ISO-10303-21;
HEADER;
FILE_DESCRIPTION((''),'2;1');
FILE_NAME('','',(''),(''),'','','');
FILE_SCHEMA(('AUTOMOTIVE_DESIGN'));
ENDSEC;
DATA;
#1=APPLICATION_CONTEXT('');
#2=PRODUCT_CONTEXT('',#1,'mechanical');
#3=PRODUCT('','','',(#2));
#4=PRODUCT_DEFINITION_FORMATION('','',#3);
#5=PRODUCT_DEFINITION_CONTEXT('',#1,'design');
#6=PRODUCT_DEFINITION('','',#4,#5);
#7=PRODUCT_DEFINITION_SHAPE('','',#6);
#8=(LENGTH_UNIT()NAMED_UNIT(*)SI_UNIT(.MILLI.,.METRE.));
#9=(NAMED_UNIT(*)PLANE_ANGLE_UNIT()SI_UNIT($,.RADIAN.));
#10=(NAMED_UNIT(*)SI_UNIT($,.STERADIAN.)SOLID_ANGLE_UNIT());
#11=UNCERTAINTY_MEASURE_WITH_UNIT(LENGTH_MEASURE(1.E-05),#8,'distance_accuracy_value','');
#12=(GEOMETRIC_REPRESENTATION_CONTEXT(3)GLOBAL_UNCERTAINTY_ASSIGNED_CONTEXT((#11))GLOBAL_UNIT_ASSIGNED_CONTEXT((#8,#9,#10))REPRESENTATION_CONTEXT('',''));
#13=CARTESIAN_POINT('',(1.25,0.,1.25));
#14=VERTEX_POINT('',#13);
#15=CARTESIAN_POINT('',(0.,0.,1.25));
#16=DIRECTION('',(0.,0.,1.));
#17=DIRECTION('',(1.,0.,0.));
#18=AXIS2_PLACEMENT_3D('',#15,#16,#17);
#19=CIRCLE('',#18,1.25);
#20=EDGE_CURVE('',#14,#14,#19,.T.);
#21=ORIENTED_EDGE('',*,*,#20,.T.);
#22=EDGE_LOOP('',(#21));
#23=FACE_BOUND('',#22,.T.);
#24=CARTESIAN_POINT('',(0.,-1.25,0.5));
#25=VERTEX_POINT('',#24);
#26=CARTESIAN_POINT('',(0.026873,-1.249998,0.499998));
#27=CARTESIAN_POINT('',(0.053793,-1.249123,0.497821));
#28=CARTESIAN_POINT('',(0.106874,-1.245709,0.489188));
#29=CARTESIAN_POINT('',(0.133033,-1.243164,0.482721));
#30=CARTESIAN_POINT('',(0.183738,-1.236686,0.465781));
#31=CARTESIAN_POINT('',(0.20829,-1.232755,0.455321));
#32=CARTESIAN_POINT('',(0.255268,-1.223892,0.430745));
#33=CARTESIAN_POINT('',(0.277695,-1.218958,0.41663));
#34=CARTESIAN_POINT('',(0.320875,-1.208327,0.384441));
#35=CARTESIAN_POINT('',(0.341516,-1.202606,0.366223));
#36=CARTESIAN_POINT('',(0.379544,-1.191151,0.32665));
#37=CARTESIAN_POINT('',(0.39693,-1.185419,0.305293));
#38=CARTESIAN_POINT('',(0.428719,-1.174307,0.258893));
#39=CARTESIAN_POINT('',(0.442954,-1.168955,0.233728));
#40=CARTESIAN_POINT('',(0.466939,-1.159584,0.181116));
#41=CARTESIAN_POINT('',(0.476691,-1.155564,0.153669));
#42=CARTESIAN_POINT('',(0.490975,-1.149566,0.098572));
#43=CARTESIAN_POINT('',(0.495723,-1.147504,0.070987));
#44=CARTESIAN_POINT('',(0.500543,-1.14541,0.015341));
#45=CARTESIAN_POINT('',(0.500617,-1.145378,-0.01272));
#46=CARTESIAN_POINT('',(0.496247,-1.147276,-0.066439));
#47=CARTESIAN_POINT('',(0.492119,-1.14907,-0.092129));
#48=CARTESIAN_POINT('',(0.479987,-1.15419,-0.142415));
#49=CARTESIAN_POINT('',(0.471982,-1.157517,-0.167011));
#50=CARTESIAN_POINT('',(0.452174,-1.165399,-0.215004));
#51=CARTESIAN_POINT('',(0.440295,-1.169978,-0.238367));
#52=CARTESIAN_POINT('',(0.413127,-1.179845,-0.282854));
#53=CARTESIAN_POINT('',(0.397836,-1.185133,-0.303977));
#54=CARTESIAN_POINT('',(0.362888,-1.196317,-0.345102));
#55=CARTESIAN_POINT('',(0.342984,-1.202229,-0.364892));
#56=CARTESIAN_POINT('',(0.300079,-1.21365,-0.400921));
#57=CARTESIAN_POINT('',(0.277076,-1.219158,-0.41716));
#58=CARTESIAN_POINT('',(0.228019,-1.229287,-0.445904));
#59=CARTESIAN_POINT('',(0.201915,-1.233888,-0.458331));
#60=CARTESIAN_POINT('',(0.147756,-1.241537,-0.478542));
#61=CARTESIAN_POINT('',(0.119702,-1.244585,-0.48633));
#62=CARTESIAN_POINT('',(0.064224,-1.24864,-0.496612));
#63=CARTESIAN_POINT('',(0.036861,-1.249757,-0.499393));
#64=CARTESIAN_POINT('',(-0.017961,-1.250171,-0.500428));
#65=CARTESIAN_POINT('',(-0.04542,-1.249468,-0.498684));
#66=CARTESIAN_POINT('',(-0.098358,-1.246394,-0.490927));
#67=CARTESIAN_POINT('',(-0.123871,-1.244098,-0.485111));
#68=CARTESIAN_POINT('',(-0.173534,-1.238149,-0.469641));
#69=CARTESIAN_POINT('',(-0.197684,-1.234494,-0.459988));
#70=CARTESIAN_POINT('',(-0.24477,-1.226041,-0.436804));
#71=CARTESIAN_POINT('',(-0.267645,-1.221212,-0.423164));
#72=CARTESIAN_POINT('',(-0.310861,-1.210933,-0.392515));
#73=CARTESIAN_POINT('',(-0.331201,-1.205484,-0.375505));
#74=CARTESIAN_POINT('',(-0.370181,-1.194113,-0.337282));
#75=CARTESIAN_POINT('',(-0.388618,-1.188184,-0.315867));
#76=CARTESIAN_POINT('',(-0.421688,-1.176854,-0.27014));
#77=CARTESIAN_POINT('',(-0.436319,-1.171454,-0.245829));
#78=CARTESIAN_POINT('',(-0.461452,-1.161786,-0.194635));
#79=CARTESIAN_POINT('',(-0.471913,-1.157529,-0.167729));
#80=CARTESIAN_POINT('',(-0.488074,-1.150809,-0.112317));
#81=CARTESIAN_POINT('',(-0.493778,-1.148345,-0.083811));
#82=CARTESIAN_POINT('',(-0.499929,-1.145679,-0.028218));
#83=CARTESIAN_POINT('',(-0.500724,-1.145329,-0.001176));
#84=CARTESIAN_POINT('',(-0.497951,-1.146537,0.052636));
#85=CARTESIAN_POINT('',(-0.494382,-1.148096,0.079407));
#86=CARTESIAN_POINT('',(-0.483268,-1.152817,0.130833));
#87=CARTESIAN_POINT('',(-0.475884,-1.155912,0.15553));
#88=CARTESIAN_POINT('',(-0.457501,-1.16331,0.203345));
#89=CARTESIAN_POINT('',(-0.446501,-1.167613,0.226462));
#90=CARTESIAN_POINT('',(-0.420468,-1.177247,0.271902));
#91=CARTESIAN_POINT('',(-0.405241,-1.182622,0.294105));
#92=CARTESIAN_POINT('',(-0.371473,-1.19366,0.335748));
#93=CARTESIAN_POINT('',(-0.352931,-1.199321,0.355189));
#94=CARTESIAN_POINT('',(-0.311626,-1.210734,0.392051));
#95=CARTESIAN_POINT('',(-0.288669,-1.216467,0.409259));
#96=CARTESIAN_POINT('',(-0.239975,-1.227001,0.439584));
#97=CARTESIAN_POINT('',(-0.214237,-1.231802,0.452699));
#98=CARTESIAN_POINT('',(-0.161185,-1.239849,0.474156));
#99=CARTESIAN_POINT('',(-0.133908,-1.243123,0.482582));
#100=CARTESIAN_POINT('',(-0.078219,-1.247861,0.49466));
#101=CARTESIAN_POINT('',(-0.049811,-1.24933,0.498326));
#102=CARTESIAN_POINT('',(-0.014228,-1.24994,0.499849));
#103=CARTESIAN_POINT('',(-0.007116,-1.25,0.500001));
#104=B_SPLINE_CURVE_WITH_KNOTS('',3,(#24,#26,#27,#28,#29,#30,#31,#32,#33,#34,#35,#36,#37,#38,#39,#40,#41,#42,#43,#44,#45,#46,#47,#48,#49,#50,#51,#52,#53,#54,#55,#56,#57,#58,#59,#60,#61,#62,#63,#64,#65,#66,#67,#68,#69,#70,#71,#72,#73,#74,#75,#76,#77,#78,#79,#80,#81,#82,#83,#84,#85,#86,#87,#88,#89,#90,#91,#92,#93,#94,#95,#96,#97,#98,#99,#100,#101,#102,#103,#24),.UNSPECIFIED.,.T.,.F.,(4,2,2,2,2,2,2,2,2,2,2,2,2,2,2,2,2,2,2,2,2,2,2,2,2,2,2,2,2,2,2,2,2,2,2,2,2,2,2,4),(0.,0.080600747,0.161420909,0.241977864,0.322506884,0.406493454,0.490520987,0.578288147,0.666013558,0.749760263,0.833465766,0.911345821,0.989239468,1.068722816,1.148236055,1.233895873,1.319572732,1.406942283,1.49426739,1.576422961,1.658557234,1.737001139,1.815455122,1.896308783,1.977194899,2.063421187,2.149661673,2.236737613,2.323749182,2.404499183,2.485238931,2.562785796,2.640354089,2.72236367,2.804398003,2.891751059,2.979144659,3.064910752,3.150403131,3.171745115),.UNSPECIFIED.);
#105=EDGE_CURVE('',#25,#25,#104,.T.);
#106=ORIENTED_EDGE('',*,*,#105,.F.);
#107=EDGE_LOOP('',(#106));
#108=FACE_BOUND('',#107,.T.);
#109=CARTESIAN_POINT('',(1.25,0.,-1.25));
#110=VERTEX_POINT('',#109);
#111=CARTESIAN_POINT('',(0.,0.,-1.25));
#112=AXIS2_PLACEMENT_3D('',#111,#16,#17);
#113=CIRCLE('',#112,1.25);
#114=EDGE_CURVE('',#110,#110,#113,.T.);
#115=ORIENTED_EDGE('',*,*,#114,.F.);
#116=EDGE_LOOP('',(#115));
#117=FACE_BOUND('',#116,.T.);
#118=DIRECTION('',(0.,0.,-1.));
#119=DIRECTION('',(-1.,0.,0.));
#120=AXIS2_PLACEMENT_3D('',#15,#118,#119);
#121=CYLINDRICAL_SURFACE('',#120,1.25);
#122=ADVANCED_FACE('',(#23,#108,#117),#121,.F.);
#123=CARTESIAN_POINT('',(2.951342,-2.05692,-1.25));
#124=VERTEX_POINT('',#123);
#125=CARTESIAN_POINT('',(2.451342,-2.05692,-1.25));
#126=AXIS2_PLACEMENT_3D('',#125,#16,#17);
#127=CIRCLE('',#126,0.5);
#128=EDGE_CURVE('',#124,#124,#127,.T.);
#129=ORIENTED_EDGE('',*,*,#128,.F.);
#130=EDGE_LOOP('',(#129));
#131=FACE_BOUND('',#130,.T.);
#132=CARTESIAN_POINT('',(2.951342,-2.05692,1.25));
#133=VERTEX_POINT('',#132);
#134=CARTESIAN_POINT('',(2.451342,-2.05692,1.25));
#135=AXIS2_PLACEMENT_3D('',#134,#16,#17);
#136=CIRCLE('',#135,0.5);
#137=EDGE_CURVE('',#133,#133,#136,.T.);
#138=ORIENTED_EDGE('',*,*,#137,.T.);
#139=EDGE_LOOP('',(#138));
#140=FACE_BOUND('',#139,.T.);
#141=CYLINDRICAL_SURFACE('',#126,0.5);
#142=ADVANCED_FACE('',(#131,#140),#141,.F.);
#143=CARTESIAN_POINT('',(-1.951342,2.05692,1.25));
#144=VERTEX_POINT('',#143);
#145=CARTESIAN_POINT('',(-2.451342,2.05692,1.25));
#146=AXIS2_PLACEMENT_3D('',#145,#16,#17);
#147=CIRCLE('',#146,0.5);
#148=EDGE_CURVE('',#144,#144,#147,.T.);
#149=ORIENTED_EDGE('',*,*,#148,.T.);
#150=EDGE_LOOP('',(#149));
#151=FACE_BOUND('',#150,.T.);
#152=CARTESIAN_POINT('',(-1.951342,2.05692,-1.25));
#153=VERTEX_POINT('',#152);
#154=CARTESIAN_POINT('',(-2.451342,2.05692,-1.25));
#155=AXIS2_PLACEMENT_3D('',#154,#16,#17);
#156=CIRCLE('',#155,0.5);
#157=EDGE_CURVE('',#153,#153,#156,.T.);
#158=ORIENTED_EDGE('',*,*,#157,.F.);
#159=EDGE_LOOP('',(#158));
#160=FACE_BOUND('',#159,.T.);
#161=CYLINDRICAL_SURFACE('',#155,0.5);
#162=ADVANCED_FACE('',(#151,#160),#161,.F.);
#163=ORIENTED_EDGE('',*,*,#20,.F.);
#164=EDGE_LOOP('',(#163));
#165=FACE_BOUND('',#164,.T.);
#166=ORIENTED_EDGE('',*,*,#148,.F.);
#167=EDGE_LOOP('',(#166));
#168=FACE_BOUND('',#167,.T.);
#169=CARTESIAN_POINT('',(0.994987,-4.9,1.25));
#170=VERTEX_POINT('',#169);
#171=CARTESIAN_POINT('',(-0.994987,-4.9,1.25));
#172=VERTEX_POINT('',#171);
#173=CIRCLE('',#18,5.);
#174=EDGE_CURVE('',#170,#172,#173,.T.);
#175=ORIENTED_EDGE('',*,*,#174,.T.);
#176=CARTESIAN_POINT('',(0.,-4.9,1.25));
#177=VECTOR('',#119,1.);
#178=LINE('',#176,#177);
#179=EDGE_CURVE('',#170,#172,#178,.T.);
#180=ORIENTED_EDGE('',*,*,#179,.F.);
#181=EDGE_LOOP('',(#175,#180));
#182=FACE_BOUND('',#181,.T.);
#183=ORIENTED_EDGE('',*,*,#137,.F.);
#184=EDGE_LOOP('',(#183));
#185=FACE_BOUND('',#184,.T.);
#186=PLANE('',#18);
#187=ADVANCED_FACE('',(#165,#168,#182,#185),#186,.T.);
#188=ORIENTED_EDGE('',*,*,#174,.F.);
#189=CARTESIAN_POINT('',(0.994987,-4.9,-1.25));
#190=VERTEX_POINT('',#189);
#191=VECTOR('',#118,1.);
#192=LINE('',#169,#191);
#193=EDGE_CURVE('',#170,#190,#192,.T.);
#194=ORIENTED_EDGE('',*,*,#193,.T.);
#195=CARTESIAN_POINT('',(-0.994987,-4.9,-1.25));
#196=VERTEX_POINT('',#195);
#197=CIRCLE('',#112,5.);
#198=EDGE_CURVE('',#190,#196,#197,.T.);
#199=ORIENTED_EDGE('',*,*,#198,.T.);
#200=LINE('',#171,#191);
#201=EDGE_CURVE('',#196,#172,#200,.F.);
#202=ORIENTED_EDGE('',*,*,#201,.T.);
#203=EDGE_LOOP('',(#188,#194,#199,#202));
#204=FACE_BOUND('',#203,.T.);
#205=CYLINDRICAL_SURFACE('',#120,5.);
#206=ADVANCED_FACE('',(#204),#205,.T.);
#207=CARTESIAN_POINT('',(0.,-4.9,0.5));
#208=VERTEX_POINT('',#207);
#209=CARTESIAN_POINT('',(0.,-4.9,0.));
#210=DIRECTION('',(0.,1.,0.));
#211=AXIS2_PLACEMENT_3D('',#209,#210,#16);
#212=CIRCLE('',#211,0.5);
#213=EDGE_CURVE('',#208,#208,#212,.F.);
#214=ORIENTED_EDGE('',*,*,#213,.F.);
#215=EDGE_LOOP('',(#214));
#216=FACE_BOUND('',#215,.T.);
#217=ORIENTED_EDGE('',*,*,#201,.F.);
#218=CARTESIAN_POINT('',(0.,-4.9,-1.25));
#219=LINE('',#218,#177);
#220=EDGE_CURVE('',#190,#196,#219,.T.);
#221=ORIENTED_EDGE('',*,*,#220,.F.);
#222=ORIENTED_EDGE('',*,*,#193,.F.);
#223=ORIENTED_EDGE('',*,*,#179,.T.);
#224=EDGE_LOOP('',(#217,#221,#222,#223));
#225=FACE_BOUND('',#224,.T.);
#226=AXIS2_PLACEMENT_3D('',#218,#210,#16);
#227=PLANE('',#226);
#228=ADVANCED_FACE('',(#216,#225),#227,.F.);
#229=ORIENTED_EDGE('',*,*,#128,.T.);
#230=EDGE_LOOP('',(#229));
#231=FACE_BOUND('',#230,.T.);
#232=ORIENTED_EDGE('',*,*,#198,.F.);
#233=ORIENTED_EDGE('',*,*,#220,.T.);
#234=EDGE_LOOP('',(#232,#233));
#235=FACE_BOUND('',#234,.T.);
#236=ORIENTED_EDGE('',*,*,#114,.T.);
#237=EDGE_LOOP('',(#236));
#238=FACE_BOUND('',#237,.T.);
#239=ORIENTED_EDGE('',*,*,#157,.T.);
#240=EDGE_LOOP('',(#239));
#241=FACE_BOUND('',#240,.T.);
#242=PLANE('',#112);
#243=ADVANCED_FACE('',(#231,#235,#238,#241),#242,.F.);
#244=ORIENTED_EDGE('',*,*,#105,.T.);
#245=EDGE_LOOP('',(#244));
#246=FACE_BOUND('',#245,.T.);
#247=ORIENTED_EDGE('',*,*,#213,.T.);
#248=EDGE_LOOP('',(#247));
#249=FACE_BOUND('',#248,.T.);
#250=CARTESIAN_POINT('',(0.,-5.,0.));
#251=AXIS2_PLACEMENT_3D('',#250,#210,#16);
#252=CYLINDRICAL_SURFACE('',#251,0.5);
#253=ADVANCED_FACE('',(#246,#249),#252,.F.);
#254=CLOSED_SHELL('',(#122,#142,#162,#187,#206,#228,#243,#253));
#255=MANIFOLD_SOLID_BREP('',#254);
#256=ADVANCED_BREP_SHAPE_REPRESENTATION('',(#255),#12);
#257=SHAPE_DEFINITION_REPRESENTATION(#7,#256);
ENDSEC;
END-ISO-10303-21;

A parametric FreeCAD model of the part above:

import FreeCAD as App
import Part
import Sketcher

V = App.Vector
Q = App.Units.Quantity


def add_polygon(sketch, points):
    """Adds a closed chain of lines whose ends are joined by coincident constraints."""
    first, n = sketch.GeometryCount, len(points)
    for a, b in zip(points, points[1:] + points[:1]):
        sketch.addGeometry(Part.LineSegment(App.Vector(*a, 0), App.Vector(*b, 0)), False)
    for i in range(n):
        sketch.addConstraint(Sketcher.Constraint("Coincident", first + i, 2, first + (i + 1) % n, 1))

doc = App.newDocument("Part")
body = doc.addObject("PartDesign::Body", "Body")

# Sketch on XY plane
sketch1 = body.newObject("Sketcher::SketchObject", "Sketch")
sketch1.AttachmentSupport = (doc.getObject("XY_Plane"), [""])
sketch1.MapMode = "FlatFace"
sketch1.addGeometry([
    Part.Circle(V(0, 0, 0), V(0, 0, 1), 5),
    Part.Circle(V(0, 0, 0), V(0, 0, 1), 1.2),
], False)
sketch1.addConstraint([
    Sketcher.Constraint("Coincident", 0, 3, -1, 1),
    Sketcher.Constraint("Coincident", 1, 3, -1, 1),
    Sketcher.Constraint("Diameter", 0, Q("10 mm")),
    Sketcher.Constraint("Diameter", 1, Q("2.5 mm")),
])
pad1 = body.newObject("PartDesign::Pad", "Pad")
pad1.Profile = sketch1
pad1.Length = 2.5
pad1.Midplane = True

# Sketch on XY plane
sketch2 = body.newObject("Sketcher::SketchObject", "Sketch001")
sketch2.AttachmentSupport = (doc.getObject("XY_Plane"), [""])
sketch2.MapMode = "FlatFace"
sketch2.addGeometry([
    Part.Circle(V(-2.5, 2.1, 0), V(0, 0, 1), 0.5),
    Part.Circle(V(2.5, -2.1, 0), V(0, 0, 1), 0.5),
], False)
sketch2.addConstraint([
    Sketcher.Constraint("Equal", 0, 1),
    Sketcher.Constraint("Symmetric", 0, 3, 1, 3, -1, 1),
    Sketcher.Constraint("Diameter", 0, Q("1 mm")),
    Sketcher.Constraint("DistanceY", -1, 1, 0, 3, Q("2.05692 mm")),
    Sketcher.Constraint("DistanceX", 0, 3, -1, 1, Q("2.451342 mm")),
])
pocket1 = body.newObject("PartDesign::Pocket", "Pocket")
pocket1.Profile = sketch2
pocket1.Type = "ThroughAll"
pocket1.Midplane = True

# Sketch on XZ plane
sketch3 = body.newObject("Sketcher::SketchObject", "Sketch002")
sketch3.AttachmentSupport = (doc.getObject("XZ_Plane"), [""])
sketch3.MapMode = "FlatFace"
sketch3.addGeometry(Part.Circle(V(0, 0, 0), V(0, 0, 1), 0.5), False)
sketch3.addConstraint([
    Sketcher.Constraint("Coincident", 0, 3, -1, 1),
    Sketcher.Constraint("Diameter", 0, Q("1 mm")),
])
pocket2 = body.newObject("PartDesign::Pocket", "Pocket001")
pocket2.Profile = sketch3
pocket2.Type = "ThroughAll"
pocket2.Reversed = True

# Sketch on XY plane
sketch4 = body.newObject("Sketcher::SketchObject", "Sketch003")
sketch4.AttachmentSupport = (doc.getObject("XY_Plane"), [""])
sketch4.MapMode = "FlatFace"
add_polygon(sketch4, [(-4.2, -4.9), (-4.2, -5.5), (4.1, -5.5), (4.1, -4.9)])  # lines 0-3
sketch4.addConstraint([
    Sketcher.Constraint("Vertical", 0),
    Sketcher.Constraint("Horizontal", 1),
    Sketcher.Constraint("Vertical", 2),
    Sketcher.Constraint("Horizontal", 3),
    Sketcher.Constraint("DistanceY", 2, 2, -1, 1, Q("4.9 mm")),
    Sketcher.Constraint("DistanceX", 1, 1, 1, 2, Q("8.297648 mm")),
    Sketcher.Constraint("DistanceY", 0, 2, 0, 1, Q("0.572766 mm")),
    Sketcher.Constraint("DistanceX", 0, 2, -1, 1, Q("4.205463 mm")),
])
pocket3 = body.newObject("PartDesign::Pocket", "Pocket002")
pocket3.Profile = sketch4
pocket3.Type = "ThroughAll"
pocket3.Midplane = True

doc.recompute()
